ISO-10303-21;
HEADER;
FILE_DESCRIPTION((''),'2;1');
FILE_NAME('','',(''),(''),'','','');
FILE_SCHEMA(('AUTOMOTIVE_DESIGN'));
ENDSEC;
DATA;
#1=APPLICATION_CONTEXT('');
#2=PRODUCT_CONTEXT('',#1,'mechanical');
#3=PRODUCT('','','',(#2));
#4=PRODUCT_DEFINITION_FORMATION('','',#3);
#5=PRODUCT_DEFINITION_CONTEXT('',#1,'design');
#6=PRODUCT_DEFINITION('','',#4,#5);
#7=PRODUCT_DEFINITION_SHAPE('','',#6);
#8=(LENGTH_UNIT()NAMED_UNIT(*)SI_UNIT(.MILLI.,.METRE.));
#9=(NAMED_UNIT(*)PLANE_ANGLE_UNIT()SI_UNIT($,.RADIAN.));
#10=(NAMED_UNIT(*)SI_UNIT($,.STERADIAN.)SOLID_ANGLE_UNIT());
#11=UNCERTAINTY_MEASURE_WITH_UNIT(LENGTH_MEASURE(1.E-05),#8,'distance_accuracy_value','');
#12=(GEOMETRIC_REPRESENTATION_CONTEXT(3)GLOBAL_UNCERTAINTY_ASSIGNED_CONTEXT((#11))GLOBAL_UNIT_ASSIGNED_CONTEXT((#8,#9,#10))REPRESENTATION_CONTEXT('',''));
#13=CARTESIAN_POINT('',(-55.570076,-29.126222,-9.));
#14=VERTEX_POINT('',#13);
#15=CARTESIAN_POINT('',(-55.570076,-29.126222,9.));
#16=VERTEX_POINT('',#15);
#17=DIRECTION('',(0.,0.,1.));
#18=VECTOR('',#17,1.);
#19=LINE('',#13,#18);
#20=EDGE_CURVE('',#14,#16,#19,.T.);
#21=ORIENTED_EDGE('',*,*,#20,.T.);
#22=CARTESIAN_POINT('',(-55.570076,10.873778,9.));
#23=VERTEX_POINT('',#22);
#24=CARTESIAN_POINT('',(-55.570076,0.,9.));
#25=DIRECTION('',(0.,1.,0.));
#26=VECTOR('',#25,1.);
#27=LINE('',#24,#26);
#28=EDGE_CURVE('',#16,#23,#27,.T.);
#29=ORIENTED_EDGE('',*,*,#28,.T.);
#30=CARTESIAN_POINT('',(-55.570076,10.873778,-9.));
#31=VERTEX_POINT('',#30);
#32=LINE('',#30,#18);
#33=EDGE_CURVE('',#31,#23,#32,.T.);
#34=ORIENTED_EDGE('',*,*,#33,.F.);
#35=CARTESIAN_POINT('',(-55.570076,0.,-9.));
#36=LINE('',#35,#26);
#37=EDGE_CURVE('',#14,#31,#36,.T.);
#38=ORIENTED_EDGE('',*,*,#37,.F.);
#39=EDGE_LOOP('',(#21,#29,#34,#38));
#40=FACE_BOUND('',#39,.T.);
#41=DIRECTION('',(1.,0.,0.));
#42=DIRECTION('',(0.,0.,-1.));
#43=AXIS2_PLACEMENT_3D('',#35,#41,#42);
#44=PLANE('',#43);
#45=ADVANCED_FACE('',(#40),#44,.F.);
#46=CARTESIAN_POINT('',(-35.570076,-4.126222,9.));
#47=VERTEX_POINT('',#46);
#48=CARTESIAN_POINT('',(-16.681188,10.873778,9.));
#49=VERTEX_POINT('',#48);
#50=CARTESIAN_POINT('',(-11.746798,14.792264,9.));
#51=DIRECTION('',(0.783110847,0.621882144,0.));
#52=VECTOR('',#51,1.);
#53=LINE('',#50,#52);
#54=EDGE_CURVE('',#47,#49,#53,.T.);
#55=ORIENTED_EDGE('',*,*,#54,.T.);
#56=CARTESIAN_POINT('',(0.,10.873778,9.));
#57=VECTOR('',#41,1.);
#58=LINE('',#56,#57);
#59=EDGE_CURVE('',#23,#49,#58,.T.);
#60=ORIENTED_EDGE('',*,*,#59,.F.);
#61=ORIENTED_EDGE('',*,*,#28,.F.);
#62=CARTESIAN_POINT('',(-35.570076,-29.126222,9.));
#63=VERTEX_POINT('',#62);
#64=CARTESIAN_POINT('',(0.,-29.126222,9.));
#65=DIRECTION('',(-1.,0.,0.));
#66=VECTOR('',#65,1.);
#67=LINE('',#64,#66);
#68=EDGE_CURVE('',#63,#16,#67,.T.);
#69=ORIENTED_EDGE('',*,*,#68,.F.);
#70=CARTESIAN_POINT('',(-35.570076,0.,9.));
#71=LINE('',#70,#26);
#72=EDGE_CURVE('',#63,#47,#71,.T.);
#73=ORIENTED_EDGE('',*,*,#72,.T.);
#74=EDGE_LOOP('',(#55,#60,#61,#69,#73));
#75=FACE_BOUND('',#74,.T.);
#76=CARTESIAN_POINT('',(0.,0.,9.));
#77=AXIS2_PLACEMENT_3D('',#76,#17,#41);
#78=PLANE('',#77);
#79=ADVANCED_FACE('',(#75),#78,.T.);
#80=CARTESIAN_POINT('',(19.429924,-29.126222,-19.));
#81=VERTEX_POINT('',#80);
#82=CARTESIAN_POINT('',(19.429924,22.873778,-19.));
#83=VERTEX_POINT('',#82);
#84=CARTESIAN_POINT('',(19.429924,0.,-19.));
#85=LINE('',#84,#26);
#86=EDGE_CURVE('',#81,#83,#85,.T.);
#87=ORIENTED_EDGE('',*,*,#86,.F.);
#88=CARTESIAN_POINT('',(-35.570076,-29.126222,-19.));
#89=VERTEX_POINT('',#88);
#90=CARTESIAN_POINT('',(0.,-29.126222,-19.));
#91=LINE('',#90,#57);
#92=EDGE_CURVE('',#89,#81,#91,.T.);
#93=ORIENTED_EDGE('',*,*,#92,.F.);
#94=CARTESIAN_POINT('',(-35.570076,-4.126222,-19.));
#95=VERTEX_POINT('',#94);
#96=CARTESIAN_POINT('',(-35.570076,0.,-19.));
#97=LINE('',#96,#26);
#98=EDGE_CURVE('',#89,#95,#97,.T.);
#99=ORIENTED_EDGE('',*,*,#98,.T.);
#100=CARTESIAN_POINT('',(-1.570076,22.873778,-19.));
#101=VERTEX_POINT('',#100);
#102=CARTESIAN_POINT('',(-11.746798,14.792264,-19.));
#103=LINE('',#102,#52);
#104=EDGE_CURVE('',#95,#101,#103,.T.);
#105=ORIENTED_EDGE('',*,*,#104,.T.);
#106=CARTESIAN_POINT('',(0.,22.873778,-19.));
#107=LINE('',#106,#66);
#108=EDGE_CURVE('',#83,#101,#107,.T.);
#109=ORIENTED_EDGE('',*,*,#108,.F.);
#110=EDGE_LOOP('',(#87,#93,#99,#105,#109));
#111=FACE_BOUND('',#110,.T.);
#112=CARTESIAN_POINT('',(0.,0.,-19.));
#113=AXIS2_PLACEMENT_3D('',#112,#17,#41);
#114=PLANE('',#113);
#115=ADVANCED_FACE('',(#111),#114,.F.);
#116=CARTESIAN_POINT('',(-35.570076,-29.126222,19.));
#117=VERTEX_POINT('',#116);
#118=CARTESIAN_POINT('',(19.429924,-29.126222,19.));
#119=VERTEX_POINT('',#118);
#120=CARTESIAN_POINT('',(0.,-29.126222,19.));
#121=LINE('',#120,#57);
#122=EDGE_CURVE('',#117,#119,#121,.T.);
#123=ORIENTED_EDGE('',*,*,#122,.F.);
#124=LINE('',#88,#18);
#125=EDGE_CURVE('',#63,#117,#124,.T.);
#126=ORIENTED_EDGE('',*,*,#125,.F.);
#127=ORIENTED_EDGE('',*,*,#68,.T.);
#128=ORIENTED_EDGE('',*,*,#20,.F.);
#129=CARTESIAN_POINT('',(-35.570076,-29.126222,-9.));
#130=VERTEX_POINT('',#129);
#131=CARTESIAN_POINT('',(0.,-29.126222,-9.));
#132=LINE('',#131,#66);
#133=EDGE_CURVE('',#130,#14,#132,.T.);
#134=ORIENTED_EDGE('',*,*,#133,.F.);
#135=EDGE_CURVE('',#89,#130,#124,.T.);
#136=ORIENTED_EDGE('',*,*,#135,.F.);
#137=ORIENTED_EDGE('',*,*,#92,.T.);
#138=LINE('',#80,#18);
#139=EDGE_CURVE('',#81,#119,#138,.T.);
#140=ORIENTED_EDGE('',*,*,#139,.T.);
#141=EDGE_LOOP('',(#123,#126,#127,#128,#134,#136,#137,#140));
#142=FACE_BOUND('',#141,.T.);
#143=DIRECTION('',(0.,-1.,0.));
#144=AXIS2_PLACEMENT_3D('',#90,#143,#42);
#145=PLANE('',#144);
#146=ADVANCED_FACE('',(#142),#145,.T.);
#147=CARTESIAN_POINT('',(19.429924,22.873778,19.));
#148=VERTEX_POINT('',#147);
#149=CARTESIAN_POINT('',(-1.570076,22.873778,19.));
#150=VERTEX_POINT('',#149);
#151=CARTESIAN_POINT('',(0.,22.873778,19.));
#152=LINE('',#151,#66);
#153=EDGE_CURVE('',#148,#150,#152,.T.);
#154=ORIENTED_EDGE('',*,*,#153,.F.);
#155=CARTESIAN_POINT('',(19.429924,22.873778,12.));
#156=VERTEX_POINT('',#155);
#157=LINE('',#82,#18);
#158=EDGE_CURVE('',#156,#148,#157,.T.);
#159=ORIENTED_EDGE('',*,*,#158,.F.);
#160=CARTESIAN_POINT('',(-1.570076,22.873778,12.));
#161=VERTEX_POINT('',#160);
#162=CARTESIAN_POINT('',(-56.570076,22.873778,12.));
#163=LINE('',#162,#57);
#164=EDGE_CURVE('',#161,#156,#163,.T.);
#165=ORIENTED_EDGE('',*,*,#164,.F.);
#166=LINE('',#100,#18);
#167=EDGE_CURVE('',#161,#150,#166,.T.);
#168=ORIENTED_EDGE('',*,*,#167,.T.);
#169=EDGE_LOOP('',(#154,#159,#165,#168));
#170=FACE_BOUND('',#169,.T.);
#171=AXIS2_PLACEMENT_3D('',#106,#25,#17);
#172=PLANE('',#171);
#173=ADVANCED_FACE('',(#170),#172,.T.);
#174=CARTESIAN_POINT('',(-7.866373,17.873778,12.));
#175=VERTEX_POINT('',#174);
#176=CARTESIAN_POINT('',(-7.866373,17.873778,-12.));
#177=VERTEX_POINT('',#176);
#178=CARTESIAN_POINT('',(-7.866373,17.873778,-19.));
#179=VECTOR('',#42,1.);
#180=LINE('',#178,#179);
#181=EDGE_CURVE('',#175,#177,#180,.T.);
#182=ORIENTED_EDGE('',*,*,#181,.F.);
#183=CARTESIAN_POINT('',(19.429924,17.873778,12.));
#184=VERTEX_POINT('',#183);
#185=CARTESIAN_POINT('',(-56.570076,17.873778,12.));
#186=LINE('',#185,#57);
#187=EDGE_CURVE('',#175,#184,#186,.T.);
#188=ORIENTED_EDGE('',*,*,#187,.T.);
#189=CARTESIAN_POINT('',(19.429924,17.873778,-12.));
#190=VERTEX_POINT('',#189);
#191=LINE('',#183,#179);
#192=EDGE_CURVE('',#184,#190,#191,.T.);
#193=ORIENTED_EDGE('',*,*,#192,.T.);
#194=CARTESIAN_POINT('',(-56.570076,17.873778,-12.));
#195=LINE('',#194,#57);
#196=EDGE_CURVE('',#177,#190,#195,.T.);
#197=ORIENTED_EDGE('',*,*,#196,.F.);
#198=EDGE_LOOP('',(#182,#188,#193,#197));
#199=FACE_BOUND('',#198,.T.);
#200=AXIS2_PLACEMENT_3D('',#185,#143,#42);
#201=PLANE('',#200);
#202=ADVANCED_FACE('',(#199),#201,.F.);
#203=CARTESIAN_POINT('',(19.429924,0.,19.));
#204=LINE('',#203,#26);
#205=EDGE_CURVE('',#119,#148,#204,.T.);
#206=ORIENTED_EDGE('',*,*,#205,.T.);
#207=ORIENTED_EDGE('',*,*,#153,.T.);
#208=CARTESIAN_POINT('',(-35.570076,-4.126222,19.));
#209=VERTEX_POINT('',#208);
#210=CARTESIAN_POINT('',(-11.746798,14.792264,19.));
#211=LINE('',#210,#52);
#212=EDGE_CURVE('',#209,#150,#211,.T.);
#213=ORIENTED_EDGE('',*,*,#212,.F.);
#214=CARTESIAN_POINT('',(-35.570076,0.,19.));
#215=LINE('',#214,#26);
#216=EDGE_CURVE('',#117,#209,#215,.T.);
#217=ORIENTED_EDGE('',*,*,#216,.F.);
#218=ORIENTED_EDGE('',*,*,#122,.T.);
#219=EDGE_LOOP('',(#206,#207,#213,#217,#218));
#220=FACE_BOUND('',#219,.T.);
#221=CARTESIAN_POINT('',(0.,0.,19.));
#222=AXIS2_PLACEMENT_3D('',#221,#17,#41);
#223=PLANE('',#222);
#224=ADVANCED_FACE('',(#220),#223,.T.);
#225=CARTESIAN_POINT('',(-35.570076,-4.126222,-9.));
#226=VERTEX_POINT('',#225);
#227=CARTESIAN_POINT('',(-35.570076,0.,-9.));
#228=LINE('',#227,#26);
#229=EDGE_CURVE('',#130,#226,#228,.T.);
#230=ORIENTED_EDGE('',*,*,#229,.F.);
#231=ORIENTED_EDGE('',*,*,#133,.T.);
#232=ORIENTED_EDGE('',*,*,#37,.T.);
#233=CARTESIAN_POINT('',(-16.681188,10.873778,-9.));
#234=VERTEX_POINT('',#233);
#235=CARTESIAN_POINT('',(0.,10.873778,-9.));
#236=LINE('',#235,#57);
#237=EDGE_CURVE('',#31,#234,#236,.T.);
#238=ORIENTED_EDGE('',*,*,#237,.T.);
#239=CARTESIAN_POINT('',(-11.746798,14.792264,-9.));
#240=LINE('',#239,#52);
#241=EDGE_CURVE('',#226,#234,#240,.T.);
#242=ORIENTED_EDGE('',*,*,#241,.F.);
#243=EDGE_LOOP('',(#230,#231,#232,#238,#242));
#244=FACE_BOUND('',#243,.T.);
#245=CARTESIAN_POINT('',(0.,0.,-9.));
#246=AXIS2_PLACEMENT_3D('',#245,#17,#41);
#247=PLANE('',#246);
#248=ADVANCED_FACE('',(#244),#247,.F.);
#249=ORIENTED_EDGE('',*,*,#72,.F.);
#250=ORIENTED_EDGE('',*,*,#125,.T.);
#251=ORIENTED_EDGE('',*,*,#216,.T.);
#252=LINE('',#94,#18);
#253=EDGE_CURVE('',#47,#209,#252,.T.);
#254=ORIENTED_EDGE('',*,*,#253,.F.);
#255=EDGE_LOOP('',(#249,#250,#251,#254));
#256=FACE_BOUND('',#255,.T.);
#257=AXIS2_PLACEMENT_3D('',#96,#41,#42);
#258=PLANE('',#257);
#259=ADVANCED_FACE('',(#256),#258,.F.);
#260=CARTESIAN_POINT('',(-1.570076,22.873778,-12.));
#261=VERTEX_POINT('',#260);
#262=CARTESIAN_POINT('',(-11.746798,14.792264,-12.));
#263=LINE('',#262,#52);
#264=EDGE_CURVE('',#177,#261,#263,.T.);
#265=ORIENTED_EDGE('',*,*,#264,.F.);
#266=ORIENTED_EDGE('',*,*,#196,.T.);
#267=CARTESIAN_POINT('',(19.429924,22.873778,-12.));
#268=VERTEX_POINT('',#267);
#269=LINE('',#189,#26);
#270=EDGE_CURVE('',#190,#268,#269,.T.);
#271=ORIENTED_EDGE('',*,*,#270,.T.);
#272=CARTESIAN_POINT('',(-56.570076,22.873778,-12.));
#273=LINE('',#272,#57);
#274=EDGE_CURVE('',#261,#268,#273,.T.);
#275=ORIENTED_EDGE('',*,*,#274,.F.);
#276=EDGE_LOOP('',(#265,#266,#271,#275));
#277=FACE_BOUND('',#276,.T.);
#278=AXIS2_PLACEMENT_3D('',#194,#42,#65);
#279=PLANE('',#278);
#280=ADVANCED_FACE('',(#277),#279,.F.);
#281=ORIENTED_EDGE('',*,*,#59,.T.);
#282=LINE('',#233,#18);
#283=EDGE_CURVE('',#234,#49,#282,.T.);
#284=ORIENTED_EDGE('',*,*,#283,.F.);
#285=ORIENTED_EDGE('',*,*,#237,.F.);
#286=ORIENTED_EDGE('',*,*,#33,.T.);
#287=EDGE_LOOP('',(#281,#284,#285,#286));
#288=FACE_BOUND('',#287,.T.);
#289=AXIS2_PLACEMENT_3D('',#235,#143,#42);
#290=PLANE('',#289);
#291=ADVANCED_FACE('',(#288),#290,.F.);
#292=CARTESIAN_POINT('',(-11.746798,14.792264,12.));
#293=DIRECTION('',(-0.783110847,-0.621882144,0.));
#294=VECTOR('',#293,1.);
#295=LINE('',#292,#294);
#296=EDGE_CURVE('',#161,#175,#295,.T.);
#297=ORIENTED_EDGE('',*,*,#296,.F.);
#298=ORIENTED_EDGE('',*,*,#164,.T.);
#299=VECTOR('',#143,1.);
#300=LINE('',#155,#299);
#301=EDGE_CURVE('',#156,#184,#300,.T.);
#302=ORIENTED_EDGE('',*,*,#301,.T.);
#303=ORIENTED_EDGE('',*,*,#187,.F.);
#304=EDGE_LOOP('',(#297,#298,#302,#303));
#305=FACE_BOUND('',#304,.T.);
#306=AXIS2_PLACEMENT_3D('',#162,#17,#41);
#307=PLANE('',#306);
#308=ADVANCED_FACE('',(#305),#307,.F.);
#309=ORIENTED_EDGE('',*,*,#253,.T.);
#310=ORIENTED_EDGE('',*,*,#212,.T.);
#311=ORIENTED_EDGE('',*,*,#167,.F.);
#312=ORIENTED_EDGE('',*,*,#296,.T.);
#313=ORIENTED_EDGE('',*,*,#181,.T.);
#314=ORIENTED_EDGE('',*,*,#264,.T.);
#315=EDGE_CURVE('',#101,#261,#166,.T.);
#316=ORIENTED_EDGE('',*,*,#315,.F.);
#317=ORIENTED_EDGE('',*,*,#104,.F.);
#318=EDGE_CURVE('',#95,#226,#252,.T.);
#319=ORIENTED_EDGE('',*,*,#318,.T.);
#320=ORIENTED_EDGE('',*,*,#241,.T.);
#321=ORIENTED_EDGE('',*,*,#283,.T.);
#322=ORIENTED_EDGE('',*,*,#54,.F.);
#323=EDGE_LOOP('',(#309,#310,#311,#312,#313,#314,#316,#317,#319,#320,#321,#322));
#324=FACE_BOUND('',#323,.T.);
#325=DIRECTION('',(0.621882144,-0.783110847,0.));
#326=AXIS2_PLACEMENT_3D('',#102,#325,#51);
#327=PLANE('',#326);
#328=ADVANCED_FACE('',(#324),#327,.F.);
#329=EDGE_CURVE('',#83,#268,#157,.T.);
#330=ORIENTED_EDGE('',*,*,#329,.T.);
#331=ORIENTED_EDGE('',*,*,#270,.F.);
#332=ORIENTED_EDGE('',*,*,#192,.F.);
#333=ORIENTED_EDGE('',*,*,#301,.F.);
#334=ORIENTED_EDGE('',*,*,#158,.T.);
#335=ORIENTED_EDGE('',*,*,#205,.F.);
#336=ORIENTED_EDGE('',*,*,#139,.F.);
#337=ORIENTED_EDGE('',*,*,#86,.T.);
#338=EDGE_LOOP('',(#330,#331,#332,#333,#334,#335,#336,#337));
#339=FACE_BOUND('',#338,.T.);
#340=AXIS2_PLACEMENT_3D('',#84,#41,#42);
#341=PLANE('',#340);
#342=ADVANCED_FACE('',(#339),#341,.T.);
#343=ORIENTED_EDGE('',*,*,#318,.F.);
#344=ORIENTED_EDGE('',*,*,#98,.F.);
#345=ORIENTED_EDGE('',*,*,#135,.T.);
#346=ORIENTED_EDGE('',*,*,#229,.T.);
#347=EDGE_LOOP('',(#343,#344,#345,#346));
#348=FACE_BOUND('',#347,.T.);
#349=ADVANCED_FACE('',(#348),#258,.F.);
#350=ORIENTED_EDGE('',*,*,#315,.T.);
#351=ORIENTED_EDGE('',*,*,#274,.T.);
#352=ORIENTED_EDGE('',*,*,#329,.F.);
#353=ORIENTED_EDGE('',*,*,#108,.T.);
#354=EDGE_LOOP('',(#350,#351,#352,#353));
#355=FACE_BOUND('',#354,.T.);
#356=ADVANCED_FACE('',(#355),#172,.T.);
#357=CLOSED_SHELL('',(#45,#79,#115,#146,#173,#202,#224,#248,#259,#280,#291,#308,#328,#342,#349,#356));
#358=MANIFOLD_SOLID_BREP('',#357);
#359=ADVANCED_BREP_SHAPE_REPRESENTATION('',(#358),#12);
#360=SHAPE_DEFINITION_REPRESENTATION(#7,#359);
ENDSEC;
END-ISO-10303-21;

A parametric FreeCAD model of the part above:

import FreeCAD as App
import Part
import Sketcher
from FreeCAD import Vector

doc = App.newDocument("Part")
params = doc.addObject("Spreadsheet::Sheet", "Params")
for row, (alias, value) in enumerate([
    ("sketch1_width", "55 mm"),
    ("sketch1_width2", "21 mm"),
    ("sketch1_height", "25 mm"),
    ("sketch1_height2", "52 mm"),
    ("pad1_length", "19 mm"),
    ("pad1_length2", "19 mm"),
    ("sketch2_width", "20 mm"),
    ("sketch2_height", "25 mm"),
    ("sketch2_height2", "40 mm"),
    ("pad2_length", "9 mm"),
    ("pad2_length2", "9 mm"),
    ("sketch3_width", "5 mm"),
    ("sketch3_height", "24 mm"),
    ("pocket1_length", "76 mm"),
], start=1):
    params.set(f"A{row}", alias)
    params.set(f"B{row}", "=" + value)
    params.setAlias(f"B{row}", alias)

body = doc.addObject("PartDesign::Body", "Body")

# Sketch on XY plane
sketch1 = doc.addObject("Sketcher::SketchObject", "Sketch")
body.addObject(sketch1)
sketch1.AttachmentSupport = (doc.XY_Plane, [""])
sketch1.MapMode = "FlatFace"
sketch1.addGeometry(Part.LineSegment(Vector(-2, 23, 0), Vector(-36, -4, 0)), False)
sketch1.addGeometry(Part.LineSegment(Vector(-36, -4, 0), Vector(-36, -29, 0)), False)
sketch1.addGeometry(Part.LineSegment(Vector(-36, -29, 0), Vector(19, -29, 0)), False)
sketch1.addGeometry(Part.LineSegment(Vector(19, -29, 0), Vector(19, 23, 0)), False)
sketch1.addGeometry(Part.LineSegment(Vector(19, 23, 0), Vector(-2, 23, 0)), False)
sketch1.addConstraint(Sketcher.Constraint("Coincident", 0, 2, 1, 1))
sketch1.addConstraint(Sketcher.Constraint("Coincident", 1, 2, 2, 1))
sketch1.addConstraint(Sketcher.Constraint("Coincident", 2, 2, 3, 1))
sketch1.addConstraint(Sketcher.Constraint("Coincident", 3, 2, 4, 1))
sketch1.addConstraint(Sketcher.Constraint("Coincident", 4, 2, 0, 1))
sketch1.addConstraint(Sketcher.Constraint("Vertical", 1))
sketch1.addConstraint(Sketcher.Constraint("Horizontal", 2))
sketch1.addConstraint(Sketcher.Constraint("Vertical", 3))
sketch1.addConstraint(Sketcher.Constraint("Horizontal", 4))
sketch1.addConstraint(Sketcher.Constraint("DistanceX", 2, 1, 2, 2, 55.0))
sketch1.addConstraint(Sketcher.Constraint("DistanceX", 4, 2, 4, 1, 21.0))
sketch1.addConstraint(Sketcher.Constraint("DistanceY", 1, 2, 1, 1, 25.0))
sketch1.addConstraint(Sketcher.Constraint("DistanceY", 3, 1, 3, 2, 52.0))
sketch1.addConstraint(Sketcher.Constraint("DistanceY", 0, 2, -1, 1, 4.126222))
sketch1.addConstraint(Sketcher.Constraint("DistanceX", 0, 2, -1, 1, 35.570076))
sketch1.setExpression("Constraints[9]", "Params.sketch1_width")
sketch1.setExpression("Constraints[10]", "Params.sketch1_width2")
sketch1.setExpression("Constraints[11]", "Params.sketch1_height")
sketch1.setExpression("Constraints[12]", "Params.sketch1_height2")
pad1 = doc.addObject("PartDesign::Pad", "Pad")
body.addObject(pad1)
pad1.Profile = sketch1
pad1.Type = "TwoLengths"
pad1.setExpression("Length", "Params.pad1_length")
pad1.setExpression("Length2", "Params.pad1_length2")

# Sketch on XY plane
sketch2 = doc.addObject("Sketcher::SketchObject", "Sketch001")
body.addObject(sketch2)
sketch2.AttachmentSupport = (doc.XY_Plane, [""])
sketch2.MapMode = "FlatFace"
sketch2.addGeometry(Part.LineSegment(Vector(-56, -29, 0), Vector(-36, -29, 0)), False)
sketch2.addGeometry(Part.LineSegment(Vector(-36, -29, 0), Vector(-36, -4, 0)), False)
sketch2.addGeometry(Part.LineSegment(Vector(-36, -4, 0), Vector(-17, 11, 0)), False)
sketch2.addGeometry(Part.LineSegment(Vector(-17, 11, 0), Vector(-56, 11, 0)), False)
sketch2.addGeometry(Part.LineSegment(Vector(-56, 11, 0), Vector(-56, -29, 0)), False)
sketch2.addConstraint(Sketcher.Constraint("Coincident", 0, 2, 1, 1))
sketch2.addConstraint(Sketcher.Constraint("Coincident", 1, 2, 2, 1))
sketch2.addConstraint(Sketcher.Constraint("Coincident", 2, 2, 3, 1))
sketch2.addConstraint(Sketcher.Constraint("Coincident", 3, 2, 4, 1))
sketch2.addConstraint(Sketcher.Constraint("Coincident", 4, 2, 0, 1))
sketch2.addConstraint(Sketcher.Constraint("Horizontal", 0))
sketch2.addConstraint(Sketcher.Constraint("Vertical", 1))
sketch2.addConstraint(Sketcher.Constraint("Horizontal", 3))
sketch2.addConstraint(Sketcher.Constraint("Vertical", 4))
sketch2.addConstraint(Sketcher.Constraint("DistanceX", 0, 1, 0, 2, 20.0))
sketch2.addConstraint(Sketcher.Constraint("DistanceY", 1, 1, 1, 2, 25.0))
sketch2.addConstraint(Sketcher.Constraint("DistanceY", 4, 2, 4, 1, 40.0))
sketch2.addConstraint(Sketcher.Constraint("DistanceX", 3, 2, 3, 1, 38.888889))
sketch2.addConstraint(Sketcher.Constraint("DistanceY", 0, 2, -1, 1, 29.126222))
sketch2.addConstraint(Sketcher.Constraint("DistanceX", 0, 2, -1, 1, 35.570076))
sketch2.setExpression("Constraints[9]", "Params.sketch2_width")
sketch2.setExpression("Constraints[10]", "Params.sketch2_height")
sketch2.setExpression("Constraints[11]", "Params.sketch2_height2")
pad2 = doc.addObject("PartDesign::Pad", "Pad001")
body.addObject(pad2)
pad2.Profile = sketch2
pad2.Type = "TwoLengths"
pad2.setExpression("Length", "Params.pad2_length")
pad2.setExpression("Length2", "Params.pad2_length2")

# Sketch on YZ plane
sketch3 = doc.addObject("Sketcher::SketchObject", "Sketch002")
body.addObject(sketch3)
sketch3.AttachmentSupport = (doc.YZ_Plane, [""])
sketch3.MapMode = "FlatFace"
sketch3.AttachmentOffset = App.Placement(Vector(0, 0, 19.429924), App.Rotation())
sketch3.addGeometry(Part.LineSegment(Vector(23, 12, 0), Vector(18, 12, 0)), False)
sketch3.addGeometry(Part.LineSegment(Vector(18, 12, 0), Vector(18, -12, 0)), False)
sketch3.addGeometry(Part.LineSegment(Vector(18, -12, 0), Vector(23, -12, 0)), False)
sketch3.addGeometry(Part.LineSegment(Vector(23, -12, 0), Vector(23, 12, 0)), False)
sketch3.addConstraint(Sketcher.Constraint("Coincident", 0, 2, 1, 1))
sketch3.addConstraint(Sketcher.Constraint("Coincident", 1, 2, 2, 1))
sketch3.addConstraint(Sketcher.Constraint("Coincident", 2, 2, 3, 1))
sketch3.addConstraint(Sketcher.Constraint("Coincident", 3, 2, 0, 1))
sketch3.addConstraint(Sketcher.Constraint("Horizontal", 0))
sketch3.addConstraint(Sketcher.Constraint("Vertical", 1))
sketch3.addConstraint(Sketcher.Constraint("Horizontal", 2))
sketch3.addConstraint(Sketcher.Constraint("Vertical", 3))
sketch3.addConstraint(Sketcher.Constraint("DistanceX", 0, 2, 0, 1, 5.0))
sketch3.addConstraint(Sketcher.Constraint("DistanceY", 1, 2, 1, 1, 24.0))
sketch3.addConstraint(Sketcher.Constraint("DistanceY", -1, 1, 0, 2, 12.0))
sketch3.addConstraint(Sketcher.Constraint("DistanceX", -1, 1, 0, 2, 17.873778))
sketch3.setExpression("Constraints[8]", "Params.sketch3_width")
sketch3.setExpression("Constraints[9]", "Params.sketch3_height")
pocket1 = doc.addObject("PartDesign::Pocket", "Pocket")
body.addObject(pocket1)
pocket1.Profile = sketch3
pocket1.setExpression("Length", "Params.pocket1_length")

doc.recompute()
